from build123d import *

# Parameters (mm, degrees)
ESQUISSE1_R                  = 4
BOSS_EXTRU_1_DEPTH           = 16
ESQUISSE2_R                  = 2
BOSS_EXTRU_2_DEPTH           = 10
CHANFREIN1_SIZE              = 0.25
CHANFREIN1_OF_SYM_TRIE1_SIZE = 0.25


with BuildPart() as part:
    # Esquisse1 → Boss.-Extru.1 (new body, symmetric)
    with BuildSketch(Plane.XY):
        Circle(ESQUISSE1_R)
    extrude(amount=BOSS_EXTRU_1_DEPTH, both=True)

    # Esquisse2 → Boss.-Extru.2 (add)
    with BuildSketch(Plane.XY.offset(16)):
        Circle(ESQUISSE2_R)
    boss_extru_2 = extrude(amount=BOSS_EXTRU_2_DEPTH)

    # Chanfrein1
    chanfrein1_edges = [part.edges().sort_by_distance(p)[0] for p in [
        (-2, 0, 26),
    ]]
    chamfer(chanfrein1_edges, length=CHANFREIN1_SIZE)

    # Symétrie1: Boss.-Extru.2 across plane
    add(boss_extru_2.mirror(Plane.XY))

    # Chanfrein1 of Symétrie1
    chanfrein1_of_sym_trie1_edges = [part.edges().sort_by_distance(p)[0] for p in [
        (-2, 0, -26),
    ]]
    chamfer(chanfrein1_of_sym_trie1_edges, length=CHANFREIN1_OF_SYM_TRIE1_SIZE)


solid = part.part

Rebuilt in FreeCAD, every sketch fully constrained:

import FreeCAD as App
import Part
import Sketcher
Q = App.Units.Quantity


def edges_at(feature, points):
    """Names of the edges that pass closest to the given points."""
    edges = feature.Shape.Edges
    near = lambda p: min(range(len(edges)), key=lambda i: edges[i].distToShape(Part.Vertex(*p))[0])
    return sorted({f"Edge{near(p) + 1}" for p in points})

doc = App.newDocument("Part")
body = doc.addObject("PartDesign::Body", "Body")

sketch1 = doc.addObject("Sketcher::SketchObject", "Sketch")
body.addObject(sketch1)
sketch1.AttachmentSupport = (doc.XY_Plane, [""])
sketch1.MapMode = "FlatFace"
sketch1.addGeometry(Part.Circle(App.Vector(0, 0, 0), App.Vector(0, 0, 1), 4), False)
sketch1.addConstraint(Sketcher.Constraint("Coincident", 0, 3, -1, 1))
sketch1.addConstraint(Sketcher.Constraint("Diameter", 0, Q("8 mm")))
pad1 = doc.addObject("PartDesign::Pad", "Pad")
body.addObject(pad1)
pad1.Profile = sketch1
pad1.Length = 32
pad1.Midplane = True

sketch2 = doc.addObject("Sketcher::SketchObject", "Sketch001")
body.addObject(sketch2)
sketch2.AttachmentSupport = (doc.XY_Plane, [""])
sketch2.MapMode = "FlatFace"
sketch2.AttachmentOffset = App.Placement(App.Vector(0, 0, 16), App.Rotation())
sketch2.addGeometry(Part.Circle(App.Vector(0, 0, 0), App.Vector(0, 0, 1), 2), False)
sketch2.addConstraint(Sketcher.Constraint("Coincident", 0, 3, -1, 1))
sketch2.addConstraint(Sketcher.Constraint("Diameter", 0, Q("4 mm")))
pad2 = doc.addObject("PartDesign::Pad", "Pad001")
body.addObject(pad2)
pad2.Profile = sketch2
pad2.Length = 10
doc.recompute()

chamfer = doc.addObject("PartDesign::Chamfer", "Chamfer")
body.addObject(chamfer)
chamfer.Base = (pad2, edges_at(pad2, [(-2, 0, 26)]))
chamfer.Size = 0.25
doc.recompute()

mirrored = doc.addObject("PartDesign::Mirrored", "Mirrored")
body.addObject(mirrored)
mirrored.Originals = [pad2]
mirrored.MirrorPlane = (doc.XY_Plane, [""])
body.Tip = mirrored
doc.recompute()

chamfer2 = doc.addObject("PartDesign::Chamfer", "Chamfer001")
body.addObject(chamfer2)
chamfer2.Base = (mirrored, edges_at(mirrored, [(-2, 0, -26)]))
chamfer2.Size = 0.25

doc.recompute()
